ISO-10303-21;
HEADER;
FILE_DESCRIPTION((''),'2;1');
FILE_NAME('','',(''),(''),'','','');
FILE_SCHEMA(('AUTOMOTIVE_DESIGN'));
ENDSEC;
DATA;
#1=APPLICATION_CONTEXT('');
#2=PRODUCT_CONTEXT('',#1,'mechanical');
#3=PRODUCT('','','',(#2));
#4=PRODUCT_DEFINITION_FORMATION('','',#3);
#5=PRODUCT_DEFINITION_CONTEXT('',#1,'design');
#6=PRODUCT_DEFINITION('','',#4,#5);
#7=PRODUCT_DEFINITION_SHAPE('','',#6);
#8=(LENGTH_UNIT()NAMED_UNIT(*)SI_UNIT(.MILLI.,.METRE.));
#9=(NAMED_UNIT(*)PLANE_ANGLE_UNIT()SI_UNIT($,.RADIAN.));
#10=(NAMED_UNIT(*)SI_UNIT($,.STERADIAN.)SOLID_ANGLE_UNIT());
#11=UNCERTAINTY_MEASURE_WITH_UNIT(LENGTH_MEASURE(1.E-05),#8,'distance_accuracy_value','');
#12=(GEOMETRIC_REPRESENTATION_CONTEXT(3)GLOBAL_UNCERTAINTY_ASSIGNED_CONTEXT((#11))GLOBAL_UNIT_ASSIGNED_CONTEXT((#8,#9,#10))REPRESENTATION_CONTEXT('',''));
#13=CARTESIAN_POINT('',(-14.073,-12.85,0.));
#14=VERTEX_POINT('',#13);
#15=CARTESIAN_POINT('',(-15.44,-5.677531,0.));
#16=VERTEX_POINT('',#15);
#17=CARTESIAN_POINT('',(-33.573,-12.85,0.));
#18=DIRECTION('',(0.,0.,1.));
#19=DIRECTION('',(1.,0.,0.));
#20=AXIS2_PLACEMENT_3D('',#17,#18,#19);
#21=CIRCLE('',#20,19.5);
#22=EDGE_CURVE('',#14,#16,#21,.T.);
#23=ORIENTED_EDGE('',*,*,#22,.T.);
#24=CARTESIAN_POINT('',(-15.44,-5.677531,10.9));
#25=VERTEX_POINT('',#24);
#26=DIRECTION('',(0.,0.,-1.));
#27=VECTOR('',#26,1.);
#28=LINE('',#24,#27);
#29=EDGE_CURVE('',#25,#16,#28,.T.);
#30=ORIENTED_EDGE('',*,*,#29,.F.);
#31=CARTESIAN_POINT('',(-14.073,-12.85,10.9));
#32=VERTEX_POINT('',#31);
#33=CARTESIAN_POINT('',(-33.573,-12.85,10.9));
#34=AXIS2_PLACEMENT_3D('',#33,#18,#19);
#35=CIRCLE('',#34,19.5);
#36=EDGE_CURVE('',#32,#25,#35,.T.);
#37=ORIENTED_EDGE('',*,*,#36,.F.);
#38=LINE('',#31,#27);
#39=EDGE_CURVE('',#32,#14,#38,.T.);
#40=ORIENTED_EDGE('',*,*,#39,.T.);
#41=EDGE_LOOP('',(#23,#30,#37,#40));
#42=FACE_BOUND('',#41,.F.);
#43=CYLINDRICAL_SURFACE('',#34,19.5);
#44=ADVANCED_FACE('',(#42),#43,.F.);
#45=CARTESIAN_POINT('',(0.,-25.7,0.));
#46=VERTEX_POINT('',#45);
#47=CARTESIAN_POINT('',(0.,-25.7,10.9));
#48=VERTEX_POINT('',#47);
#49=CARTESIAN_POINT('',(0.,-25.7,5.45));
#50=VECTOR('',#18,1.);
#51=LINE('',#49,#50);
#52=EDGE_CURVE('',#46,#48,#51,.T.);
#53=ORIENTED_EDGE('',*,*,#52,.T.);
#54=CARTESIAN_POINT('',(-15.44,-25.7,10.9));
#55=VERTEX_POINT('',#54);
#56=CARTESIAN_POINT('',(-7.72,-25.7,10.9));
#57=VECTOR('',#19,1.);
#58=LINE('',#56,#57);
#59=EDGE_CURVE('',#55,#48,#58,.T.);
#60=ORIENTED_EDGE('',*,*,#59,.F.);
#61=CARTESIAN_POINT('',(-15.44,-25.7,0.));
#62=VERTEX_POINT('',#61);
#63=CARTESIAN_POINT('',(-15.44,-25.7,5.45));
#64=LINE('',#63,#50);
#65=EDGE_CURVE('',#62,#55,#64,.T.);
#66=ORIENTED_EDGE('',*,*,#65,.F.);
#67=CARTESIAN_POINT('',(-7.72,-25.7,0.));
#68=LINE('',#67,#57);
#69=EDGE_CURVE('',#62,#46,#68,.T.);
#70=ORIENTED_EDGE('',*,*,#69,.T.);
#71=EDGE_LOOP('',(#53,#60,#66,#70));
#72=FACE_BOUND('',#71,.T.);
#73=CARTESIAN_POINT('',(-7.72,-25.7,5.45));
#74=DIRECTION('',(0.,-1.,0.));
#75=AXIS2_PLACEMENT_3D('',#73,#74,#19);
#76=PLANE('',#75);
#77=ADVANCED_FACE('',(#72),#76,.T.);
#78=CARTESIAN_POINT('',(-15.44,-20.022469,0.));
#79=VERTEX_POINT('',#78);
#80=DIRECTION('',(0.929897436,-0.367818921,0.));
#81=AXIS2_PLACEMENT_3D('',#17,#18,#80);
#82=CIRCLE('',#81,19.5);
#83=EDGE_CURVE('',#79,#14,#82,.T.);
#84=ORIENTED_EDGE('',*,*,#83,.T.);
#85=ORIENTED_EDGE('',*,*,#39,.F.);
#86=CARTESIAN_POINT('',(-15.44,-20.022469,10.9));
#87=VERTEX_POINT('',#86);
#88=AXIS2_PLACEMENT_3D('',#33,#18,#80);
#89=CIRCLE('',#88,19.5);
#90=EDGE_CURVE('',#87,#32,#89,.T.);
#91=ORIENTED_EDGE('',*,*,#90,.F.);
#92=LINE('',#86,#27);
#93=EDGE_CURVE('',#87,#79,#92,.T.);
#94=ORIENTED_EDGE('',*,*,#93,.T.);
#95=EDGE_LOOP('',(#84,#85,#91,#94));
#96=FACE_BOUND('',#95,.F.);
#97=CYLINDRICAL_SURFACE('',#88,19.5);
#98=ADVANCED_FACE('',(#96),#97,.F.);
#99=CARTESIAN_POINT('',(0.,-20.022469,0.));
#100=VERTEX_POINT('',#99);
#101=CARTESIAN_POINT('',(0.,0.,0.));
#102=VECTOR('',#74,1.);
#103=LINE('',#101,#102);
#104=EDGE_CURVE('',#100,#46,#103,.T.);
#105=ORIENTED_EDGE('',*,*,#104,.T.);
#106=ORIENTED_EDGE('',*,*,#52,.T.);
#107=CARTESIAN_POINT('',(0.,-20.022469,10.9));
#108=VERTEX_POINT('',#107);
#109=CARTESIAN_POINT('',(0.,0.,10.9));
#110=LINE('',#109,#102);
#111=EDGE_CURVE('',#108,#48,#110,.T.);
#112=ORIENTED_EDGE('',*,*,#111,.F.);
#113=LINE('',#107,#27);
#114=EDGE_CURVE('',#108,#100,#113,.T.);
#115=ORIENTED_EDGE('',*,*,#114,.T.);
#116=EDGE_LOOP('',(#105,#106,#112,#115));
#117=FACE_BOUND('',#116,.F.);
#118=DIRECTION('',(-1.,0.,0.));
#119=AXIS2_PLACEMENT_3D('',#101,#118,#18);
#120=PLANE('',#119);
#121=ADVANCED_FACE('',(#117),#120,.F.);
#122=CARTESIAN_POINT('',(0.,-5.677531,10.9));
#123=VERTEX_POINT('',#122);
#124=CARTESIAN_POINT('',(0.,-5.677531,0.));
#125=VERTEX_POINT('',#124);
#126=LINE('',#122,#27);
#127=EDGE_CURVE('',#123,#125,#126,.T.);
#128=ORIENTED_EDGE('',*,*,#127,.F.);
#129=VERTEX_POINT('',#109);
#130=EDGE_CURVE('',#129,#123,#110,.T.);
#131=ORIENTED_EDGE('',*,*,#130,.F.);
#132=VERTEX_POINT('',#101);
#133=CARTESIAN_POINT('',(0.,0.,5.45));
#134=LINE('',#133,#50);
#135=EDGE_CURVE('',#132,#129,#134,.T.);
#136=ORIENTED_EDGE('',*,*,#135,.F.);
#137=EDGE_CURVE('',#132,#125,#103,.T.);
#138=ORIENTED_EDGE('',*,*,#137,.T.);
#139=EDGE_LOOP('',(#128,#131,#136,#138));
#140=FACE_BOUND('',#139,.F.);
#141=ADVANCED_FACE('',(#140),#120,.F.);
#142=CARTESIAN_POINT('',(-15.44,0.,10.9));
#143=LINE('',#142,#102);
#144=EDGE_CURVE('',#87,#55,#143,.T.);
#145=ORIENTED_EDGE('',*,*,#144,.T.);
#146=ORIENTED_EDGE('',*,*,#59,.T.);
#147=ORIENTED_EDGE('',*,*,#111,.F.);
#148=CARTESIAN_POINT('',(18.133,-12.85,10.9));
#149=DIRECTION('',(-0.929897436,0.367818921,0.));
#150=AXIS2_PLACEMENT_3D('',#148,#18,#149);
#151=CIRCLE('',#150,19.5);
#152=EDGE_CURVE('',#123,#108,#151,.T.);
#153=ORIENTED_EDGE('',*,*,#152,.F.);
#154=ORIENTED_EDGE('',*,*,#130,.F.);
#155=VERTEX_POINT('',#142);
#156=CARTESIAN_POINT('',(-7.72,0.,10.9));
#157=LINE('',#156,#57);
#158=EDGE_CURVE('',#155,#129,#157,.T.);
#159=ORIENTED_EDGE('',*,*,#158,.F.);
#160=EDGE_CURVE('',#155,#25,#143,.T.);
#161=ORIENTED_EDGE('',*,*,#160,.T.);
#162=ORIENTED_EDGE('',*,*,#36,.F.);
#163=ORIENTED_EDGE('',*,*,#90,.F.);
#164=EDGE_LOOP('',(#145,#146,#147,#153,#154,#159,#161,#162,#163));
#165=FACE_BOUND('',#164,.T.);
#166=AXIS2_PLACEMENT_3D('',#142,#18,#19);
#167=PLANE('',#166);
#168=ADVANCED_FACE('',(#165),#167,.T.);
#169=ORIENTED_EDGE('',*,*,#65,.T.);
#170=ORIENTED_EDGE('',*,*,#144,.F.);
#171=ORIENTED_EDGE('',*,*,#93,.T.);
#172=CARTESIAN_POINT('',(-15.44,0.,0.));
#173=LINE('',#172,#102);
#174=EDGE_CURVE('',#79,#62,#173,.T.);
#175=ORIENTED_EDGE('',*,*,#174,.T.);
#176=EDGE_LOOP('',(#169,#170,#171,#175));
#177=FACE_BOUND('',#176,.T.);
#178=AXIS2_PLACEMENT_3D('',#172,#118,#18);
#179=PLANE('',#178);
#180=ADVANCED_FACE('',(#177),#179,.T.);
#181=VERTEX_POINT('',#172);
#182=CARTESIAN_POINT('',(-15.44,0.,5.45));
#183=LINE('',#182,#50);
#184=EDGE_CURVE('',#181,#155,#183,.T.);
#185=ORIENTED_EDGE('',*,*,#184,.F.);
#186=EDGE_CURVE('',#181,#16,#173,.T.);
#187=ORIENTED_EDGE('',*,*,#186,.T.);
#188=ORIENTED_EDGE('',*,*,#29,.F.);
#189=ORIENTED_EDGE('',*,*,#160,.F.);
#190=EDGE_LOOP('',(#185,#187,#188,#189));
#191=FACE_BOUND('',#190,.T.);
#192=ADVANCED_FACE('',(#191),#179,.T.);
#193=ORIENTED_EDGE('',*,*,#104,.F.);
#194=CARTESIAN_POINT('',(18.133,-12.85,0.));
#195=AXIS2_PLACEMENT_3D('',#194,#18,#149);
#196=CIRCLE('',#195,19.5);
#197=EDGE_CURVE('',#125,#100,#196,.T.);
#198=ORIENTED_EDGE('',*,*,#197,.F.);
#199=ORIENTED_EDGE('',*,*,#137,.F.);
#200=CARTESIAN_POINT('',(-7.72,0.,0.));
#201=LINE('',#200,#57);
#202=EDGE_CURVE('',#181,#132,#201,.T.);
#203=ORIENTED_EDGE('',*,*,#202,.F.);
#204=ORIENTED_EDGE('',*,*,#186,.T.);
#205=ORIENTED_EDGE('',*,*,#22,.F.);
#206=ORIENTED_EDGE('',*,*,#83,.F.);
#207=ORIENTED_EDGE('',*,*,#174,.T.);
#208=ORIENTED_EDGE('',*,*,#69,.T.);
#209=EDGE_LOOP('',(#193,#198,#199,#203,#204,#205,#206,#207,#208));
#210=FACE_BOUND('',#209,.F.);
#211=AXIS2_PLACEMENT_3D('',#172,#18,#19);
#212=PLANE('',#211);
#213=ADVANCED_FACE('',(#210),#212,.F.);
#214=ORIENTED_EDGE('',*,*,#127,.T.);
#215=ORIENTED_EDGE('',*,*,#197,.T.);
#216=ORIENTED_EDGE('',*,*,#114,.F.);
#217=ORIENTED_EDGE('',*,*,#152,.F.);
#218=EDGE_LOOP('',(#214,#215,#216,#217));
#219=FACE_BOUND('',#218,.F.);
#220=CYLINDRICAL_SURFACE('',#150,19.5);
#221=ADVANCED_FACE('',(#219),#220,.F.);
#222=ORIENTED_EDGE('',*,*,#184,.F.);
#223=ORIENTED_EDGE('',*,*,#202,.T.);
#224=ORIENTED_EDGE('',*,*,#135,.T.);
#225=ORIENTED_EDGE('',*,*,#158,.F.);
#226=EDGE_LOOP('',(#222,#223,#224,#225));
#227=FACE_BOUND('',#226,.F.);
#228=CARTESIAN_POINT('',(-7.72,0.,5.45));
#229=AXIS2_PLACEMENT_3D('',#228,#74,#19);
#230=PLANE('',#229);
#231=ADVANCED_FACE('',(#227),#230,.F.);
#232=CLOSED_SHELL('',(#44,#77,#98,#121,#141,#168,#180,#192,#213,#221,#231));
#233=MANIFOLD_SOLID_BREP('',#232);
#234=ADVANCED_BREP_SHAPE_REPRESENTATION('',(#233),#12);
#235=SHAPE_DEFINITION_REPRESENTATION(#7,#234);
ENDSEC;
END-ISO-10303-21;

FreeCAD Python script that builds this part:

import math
import FreeCAD as App
import Part
import Sketcher
Q = App.Units.Quantity


def add_polygon(sketch, points):
    """Adds a closed chain of lines whose ends are joined by coincident constraints."""
    first, n = sketch.GeometryCount, len(points)
    for a, b in zip(points, points[1:] + points[:1]):
        sketch.addGeometry(Part.LineSegment(App.Vector(*a, 0), App.Vector(*b, 0)), False)
    for i in range(n):
        sketch.addConstraint(Sketcher.Constraint("Coincident", first + i, 2, first + (i + 1) % n, 1))

doc = App.newDocument("Part")
body = doc.addObject("PartDesign::Body", "Body")

# Sketch on XZ plane
sketch1 = body.newObject("Sketcher::SketchObject", "Sketch")
sketch1.AttachmentSupport = (doc.getObject("XZ_Plane"), [""])
sketch1.MapMode = "FlatFace"
add_polygon(sketch1, [(-15, 11), (-15, 0), (0, 0), (0, 11)])  # lines 0-3
sketch1.addConstraint(Sketcher.Constraint("Vertical", 0))
sketch1.addConstraint(Sketcher.Constraint("Horizontal", 1))
sketch1.addConstraint(Sketcher.Constraint("Vertical", 2))
sketch1.addConstraint(Sketcher.Constraint("Horizontal", 3))
sketch1.addConstraint(Sketcher.Constraint("Coincident", 1, 2, -1, 1))
sketch1.addConstraint(Sketcher.Constraint("DistanceY", 0, 2, 0, 1, Q("10.9 mm")))
sketch1.addConstraint(Sketcher.Constraint("DistanceX", 1, 1, 1, 2, Q("15.44 mm")))
pad1 = body.newObject("PartDesign::Pad", "Pad")
pad1.Profile = sketch1
pad1.Length = 25.7

# Sketch on XY plane
sketch2 = body.newObject("Sketcher::SketchObject", "Sketch001")
sketch2.AttachmentSupport = (doc.getObject("XY_Plane"), [""])
sketch2.MapMode = "FlatFace"
sketch2.AttachmentOffset = App.Placement(App.Vector(0, 0, 10.9), App.Rotation())
sketch2.addGeometry(Part.ArcOfCircle(Part.Circle(App.Vector(-34, -13, 0), App.Vector(0, 0, 1), 20), math.radians(-22), math.radians(0)), False)
sketch2.addGeometry(Part.ArcOfCircle(Part.Circle(App.Vector(-34, -13, 0), App.Vector(0, 0, 1), 20), math.radians(0), math.radians(22)), False)
sketch2.addGeometry(Part.LineSegment(App.Vector(-15, -6, 0), App.Vector(-15, -20, 0)), False)
sketch2.addGeometry(Part.LineSegment(App.Vector(0, -20, 0), App.Vector(0, -6, 0)), False)
sketch2.addGeometry(Part.ArcOfCircle(Part.Circle(App.Vector(18, -13, 0), App.Vector(0, 0, 1), 20), math.radians(158), math.radians(202)), False)
sketch2.addConstraint(Sketcher.Constraint("Tangent", 0, 2, 1, 1))
sketch2.addConstraint(Sketcher.Constraint("Coincident", 1, 2, 2, 1))
sketch2.addConstraint(Sketcher.Constraint("Coincident", 2, 2, 0, 1))
sketch2.addConstraint(Sketcher.Constraint("Coincident", 3, 1, 4, 2))
sketch2.addConstraint(Sketcher.Constraint("Coincident", 4, 1, 3, 2))
sketch2.addConstraint(Sketcher.Constraint("Vertical", 2))
sketch2.addConstraint(Sketcher.Constraint("Vertical", 3))
sketch2.addConstraint(Sketcher.Constraint("Equal", 0, 1))
sketch2.addConstraint(Sketcher.Constraint("Equal", 1, 4))
sketch2.addConstraint(Sketcher.Constraint("PointOnObject", 3, 1, -2))
sketch2.addConstraint(Sketcher.Constraint("Horizontal", 1, 3, 4, 3))
sketch2.addConstraint(Sketcher.Constraint("Horizontal", 4, 3, 0, 2))
sketch2.addConstraint(Sketcher.Constraint("Horizontal", 2, 2, 3, 1))
sketch2.addConstraint(Sketcher.Constraint("Radius", 0, Q("19.5 mm")))
sketch2.addConstraint(Sketcher.Constraint("DistanceY", 0, 3, -1, 1, Q("12.85 mm")))
sketch2.addConstraint(Sketcher.Constraint("DistanceX", 1, 2, -1, 1, Q("15.44 mm")))
sketch2.addConstraint(Sketcher.Constraint("DistanceX", 0, 3, -1, 1, Q("33.573 mm")))
pocket1 = body.newObject("PartDesign::Pocket", "Pocket")
pocket1.Profile = sketch2
pocket1.Type = "ThroughAll"

doc.recompute()
